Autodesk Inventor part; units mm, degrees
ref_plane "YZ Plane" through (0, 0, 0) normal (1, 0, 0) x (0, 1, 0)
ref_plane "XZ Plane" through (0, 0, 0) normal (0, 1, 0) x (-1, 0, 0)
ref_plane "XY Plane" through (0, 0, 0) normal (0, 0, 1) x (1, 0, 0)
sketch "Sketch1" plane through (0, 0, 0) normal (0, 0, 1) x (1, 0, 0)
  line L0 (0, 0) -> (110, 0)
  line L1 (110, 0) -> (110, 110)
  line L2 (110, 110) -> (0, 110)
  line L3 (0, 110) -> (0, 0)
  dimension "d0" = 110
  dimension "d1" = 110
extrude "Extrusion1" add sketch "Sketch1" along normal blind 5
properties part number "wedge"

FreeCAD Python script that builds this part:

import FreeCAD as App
import Part
import Sketcher
Q = App.Units.Quantity


def add_polygon(sketch, points):
    """Adds a closed chain of lines whose ends are joined by coincident constraints."""
    first, n = sketch.GeometryCount, len(points)
    for a, b in zip(points, points[1:] + points[:1]):
        sketch.addGeometry(Part.LineSegment(App.Vector(*a, 0), App.Vector(*b, 0)), False)
    for i in range(n):
        sketch.addConstraint(Sketcher.Constraint("Coincident", first + i, 2, first + (i + 1) % n, 1))

doc = App.newDocument("Part")
body = doc.addObject("PartDesign::Body", "Body")

# Sketch on XY plane
sketch1 = body.newObject("Sketcher::SketchObject", "Sketch")
sketch1.AttachmentSupport = (doc.getObject("XY_Plane"), [""])
sketch1.MapMode = "FlatFace"
add_polygon(sketch1, [(0, 110), (0, 0), (110, 0), (110, 110)])  # lines 0-3
sketch1.addConstraint([
    Sketcher.Constraint("Vertical", 0),
    Sketcher.Constraint("Horizontal", 1),
    Sketcher.Constraint("Vertical", 2),
    Sketcher.Constraint("Horizontal", 3),
    Sketcher.Constraint("Coincident", 0, 2, -1, 1),
    Sketcher.Constraint("Equal", 3, 0),
    Sketcher.Constraint("DistanceX", 1, 1, 1, 2, Q("110 mm")),
])
pad1 = body.newObject("PartDesign::Pad", "Pad")
pad1.Profile = sketch1
pad1.Length = 5

doc.recompute()
